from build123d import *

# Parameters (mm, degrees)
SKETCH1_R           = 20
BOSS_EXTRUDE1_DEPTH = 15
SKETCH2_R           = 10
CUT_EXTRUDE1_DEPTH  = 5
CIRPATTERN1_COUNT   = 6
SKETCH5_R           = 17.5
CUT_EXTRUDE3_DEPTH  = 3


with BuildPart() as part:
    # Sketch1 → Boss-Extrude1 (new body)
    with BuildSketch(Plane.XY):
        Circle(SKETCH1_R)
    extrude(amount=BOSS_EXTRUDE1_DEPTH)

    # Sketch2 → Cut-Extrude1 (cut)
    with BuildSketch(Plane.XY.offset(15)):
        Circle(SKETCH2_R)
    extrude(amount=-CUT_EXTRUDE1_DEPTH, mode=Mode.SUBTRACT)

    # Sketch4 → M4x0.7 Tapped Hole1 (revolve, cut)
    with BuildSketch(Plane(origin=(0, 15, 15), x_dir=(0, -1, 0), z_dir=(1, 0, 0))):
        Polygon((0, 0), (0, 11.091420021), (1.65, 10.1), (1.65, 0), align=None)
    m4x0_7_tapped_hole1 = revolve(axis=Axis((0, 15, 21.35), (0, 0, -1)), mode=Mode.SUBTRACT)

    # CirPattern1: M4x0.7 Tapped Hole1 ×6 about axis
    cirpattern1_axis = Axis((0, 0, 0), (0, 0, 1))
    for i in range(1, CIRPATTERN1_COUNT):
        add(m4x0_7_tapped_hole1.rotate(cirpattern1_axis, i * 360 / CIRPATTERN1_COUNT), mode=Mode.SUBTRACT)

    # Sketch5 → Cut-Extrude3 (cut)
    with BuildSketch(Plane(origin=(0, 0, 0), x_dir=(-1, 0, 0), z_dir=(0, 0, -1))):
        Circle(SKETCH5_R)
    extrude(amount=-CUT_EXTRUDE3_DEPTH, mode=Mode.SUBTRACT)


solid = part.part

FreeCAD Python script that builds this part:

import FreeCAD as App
import Part
import Sketcher
from FreeCAD import Vector
Q = App.Units.Quantity

doc = App.newDocument("Part")
body = doc.addObject("PartDesign::Body", "Body")

sketch1 = doc.addObject("Sketcher::SketchObject", "Sketch")
body.addObject(sketch1)
sketch1.AttachmentSupport = (doc.XY_Plane, [""])
sketch1.MapMode = "FlatFace"
sketch1.addGeometry(Part.Circle(Vector(0, 0, 0), Vector(0, 0, 1), 20), False)
sketch1.addConstraint([
    Sketcher.Constraint("Coincident", 0, 3, -1, 1),
    Sketcher.Constraint("Diameter", 0, 40.0),
])
pad1 = doc.addObject("PartDesign::Pad", "Pad")
body.addObject(pad1)
pad1.Profile = sketch1
pad1.Length = 15

sketch2 = doc.addObject("Sketcher::SketchObject", "Sketch001")
body.addObject(sketch2)
sketch2.AttachmentSupport = (doc.XY_Plane, [""])
sketch2.MapMode = "FlatFace"
sketch2.AttachmentOffset = App.Placement(Vector(0, 0, 15), App.Rotation())
sketch2.addGeometry(Part.Circle(Vector(0, 0, 0), Vector(0, 0, 1), 10), False)
sketch2.addConstraint([
    Sketcher.Constraint("Coincident", 0, 3, -1, 1),
    Sketcher.Constraint("Diameter", 0, 20.0),
])
pocket1 = doc.addObject("PartDesign::Pocket", "Pocket")
body.addObject(pocket1)
pocket1.Profile = sketch2
pocket1.Length = 5

sketch3 = doc.addObject("Sketcher::SketchObject", "Sketch002")
body.addObject(sketch3)
sketch3.AttachmentSupport = (doc.YZ_Plane, [""])
sketch3.MapMode = "FlatFace"
sketch3.addGeometry([
    Part.LineSegment(Vector(15, 3.9, 0), Vector(15, 15, 0)),
    Part.LineSegment(Vector(15, 15, 0), Vector(13.3, 15, 0)),
    Part.LineSegment(Vector(13.3, 15, 0), Vector(13.3, 4.9, 0)),
    Part.LineSegment(Vector(13.3, 4.9, 0), Vector(15, 3.9, 0)),
], False)
sketch3.addGeometry(Part.LineSegment(Vector(15, 15, 0), Vector(15, 3.9, 0)), True)
sketch3.addConstraint([
    Sketcher.Constraint("Coincident", 0, 2, 1, 1),
    Sketcher.Constraint("Coincident", 1, 2, 2, 1),
    Sketcher.Constraint("Coincident", 2, 2, 3, 1),
    Sketcher.Constraint("Coincident", 3, 2, 0, 1),
    Sketcher.Constraint("Vertical", 0),
    Sketcher.Constraint("Horizontal", 1),
    Sketcher.Constraint("Vertical", 2),
    Sketcher.Constraint("Vertical", 4),
    Sketcher.Constraint("Coincident", 4, 1, 0, 2),
    Sketcher.Constraint("Equal", 0, 4),
    Sketcher.Constraint("Angle", 3, Q("-31 deg")),
    Sketcher.Constraint("DistanceY", 2, 2, 2, 1, 10.1),
    Sketcher.Constraint("DistanceX", -1, 1, 0, 2, 15.0),
    Sketcher.Constraint("DistanceY", -1, 1, 0, 2, 15.0),
    Sketcher.Constraint("DistanceX", 1, 2, 1, 1, 1.65),
])
groove = doc.addObject("PartDesign::Groove", "Groove")
body.addObject(groove)
groove.Profile = sketch3
groove.ReferenceAxis = (sketch3, ["Axis0"])
groove.Angle = 360
doc.recompute()

polarpattern = doc.addObject("PartDesign::PolarPattern", "PolarPattern")
body.addObject(polarpattern)
polarpattern.Originals = [groove]
polarpattern.Axis = (doc.Z_Axis, [""])
polarpattern.Angle = 360
polarpattern.Occurrences = 6
body.Tip = polarpattern

sketch4 = doc.addObject("Sketcher::SketchObject", "Sketch003")
body.addObject(sketch4)
sketch4.AttachmentSupport = (doc.XY_Plane, [""])
sketch4.MapMode = "FlatFace"
sketch4.addGeometry(Part.Circle(Vector(0, 0, 0), Vector(0, 0, 1), 18), False)
sketch4.addConstraint([
    Sketcher.Constraint("Coincident", 0, 3, -1, 1),
    Sketcher.Constraint("Diameter", 0, 35.0),
])
pocket2 = doc.addObject("PartDesign::Pocket", "Pocket001")
body.addObject(pocket2)
pocket2.Profile = sketch4
pocket2.Length = 3
pocket2.Reversed = True

doc.recompute()
